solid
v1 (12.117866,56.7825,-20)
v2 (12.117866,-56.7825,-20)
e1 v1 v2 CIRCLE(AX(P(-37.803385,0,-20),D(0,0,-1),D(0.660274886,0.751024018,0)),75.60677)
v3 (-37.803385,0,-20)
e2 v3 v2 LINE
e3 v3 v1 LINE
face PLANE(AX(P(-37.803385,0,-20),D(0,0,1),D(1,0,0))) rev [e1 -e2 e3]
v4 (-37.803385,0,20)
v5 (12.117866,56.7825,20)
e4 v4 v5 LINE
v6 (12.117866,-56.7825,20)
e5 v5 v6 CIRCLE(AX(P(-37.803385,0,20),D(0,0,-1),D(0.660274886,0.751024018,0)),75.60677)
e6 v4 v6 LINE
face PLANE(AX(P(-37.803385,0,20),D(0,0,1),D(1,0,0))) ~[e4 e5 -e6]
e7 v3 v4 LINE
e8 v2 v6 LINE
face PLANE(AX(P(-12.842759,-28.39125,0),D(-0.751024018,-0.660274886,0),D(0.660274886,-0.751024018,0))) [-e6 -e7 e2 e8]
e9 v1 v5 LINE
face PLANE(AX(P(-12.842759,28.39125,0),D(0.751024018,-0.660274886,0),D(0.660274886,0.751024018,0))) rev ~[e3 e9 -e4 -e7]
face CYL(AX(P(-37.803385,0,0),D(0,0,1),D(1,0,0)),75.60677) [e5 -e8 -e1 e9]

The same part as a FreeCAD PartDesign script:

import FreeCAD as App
import Part
import Sketcher

doc = App.newDocument("Part")
body = doc.addObject("PartDesign::Body", "Body")

# Sketch on XZ plane
sketch1 = body.newObject("Sketcher::SketchObject", "Sketch")
sketch1.AttachmentSupport = (doc.getObject("XZ_Plane"), [""])
sketch1.MapMode = "FlatFace"
sketch1.addGeometry(Part.LineSegment(App.Vector(-37.803385, 20, 0), App.Vector(-37.803385, -20, 0)), False)
sketch1.addGeometry(Part.LineSegment(App.Vector(-37.803385, -20, 0), App.Vector(37.803385, -20, 0)), False)
sketch1.addGeometry(Part.LineSegment(App.Vector(37.803385, -20, 0), App.Vector(37.803385, 20, 0)), False)
sketch1.addGeometry(Part.LineSegment(App.Vector(37.803385, 20, 0), App.Vector(-37.803385, 20, 0)), False)
sketch1.addGeometry(Part.LineSegment(App.Vector(-37.803385, 20, 0), App.Vector(-37.803385, -20, 0)), True)  # axis
sketch1.addConstraint(Sketcher.Constraint("Coincident", 0, 2, 1, 1))
sketch1.addConstraint(Sketcher.Constraint("Coincident", 1, 2, 2, 1))
sketch1.addConstraint(Sketcher.Constraint("Coincident", 2, 2, 3, 1))
sketch1.addConstraint(Sketcher.Constraint("Coincident", 3, 2, 0, 1))
sketch1.addConstraint(Sketcher.Constraint("Vertical", 0))
sketch1.addConstraint(Sketcher.Constraint("Horizontal", 1))
sketch1.addConstraint(Sketcher.Constraint("Vertical", 2))
sketch1.addConstraint(Sketcher.Constraint("Horizontal", 3))
sketch1.addConstraint(Sketcher.Constraint("Vertical", 4))
sketch1.addConstraint(Sketcher.Constraint("Coincident", 4, 1, 3, 2))
sketch1.addConstraint(Sketcher.Constraint("Symmetric", 0, 2, 2, 2, -1, 1))
sketch1.addConstraint(Sketcher.Constraint("Horizontal", 1, 2, 4, 2))
sketch1.addConstraint(Sketcher.Constraint("DistanceY", 0, 2, 0, 1, 40.0))
sketch1.addConstraint(Sketcher.Constraint("DistanceX", 1, 1, 1, 2, 75.60677))
revolution = body.newObject("PartDesign::Revolution", "Revolution")
revolution.Profile = sketch1
revolution.ReferenceAxis = (sketch1, ["Axis0"])
revolution.Angle = 48.679159

# Sketch on XZ plane
sketch2 = body.newObject("Sketcher::SketchObject", "Sketch001")
sketch2.AttachmentSupport = (doc.getObject("XZ_Plane"), [""])
sketch2.MapMode = "FlatFace"
sketch2.addGeometry(Part.LineSegment(App.Vector(-37.803385, 20, 0), App.Vector(-37.803385, -20, 0)), False)
sketch2.addGeometry(Part.LineSegment(App.Vector(-37.803385, -20, 0), App.Vector(37.803385, -20, 0)), False)
sketch2.addGeometry(Part.LineSegment(App.Vector(37.803385, -20, 0), App.Vector(37.803385, 20, 0)), False)
sketch2.addGeometry(Part.LineSegment(App.Vector(37.803385, 20, 0), App.Vector(-37.803385, 20, 0)), False)
sketch2.addGeometry(Part.LineSegment(App.Vector(-37.803385, -20, 0), App.Vector(-37.803385, 20, 0)), True)  # axis
sketch2.addConstraint(Sketcher.Constraint("Coincident", 0, 2, 1, 1))
sketch2.addConstraint(Sketcher.Constraint("Coincident", 1, 2, 2, 1))
sketch2.addConstraint(Sketcher.Constraint("Coincident", 2, 2, 3, 1))
sketch2.addConstraint(Sketcher.Constraint("Coincident", 3, 2, 0, 1))
sketch2.addConstraint(Sketcher.Constraint("Vertical", 0))
sketch2.addConstraint(Sketcher.Constraint("Horizontal", 1))
sketch2.addConstraint(Sketcher.Constraint("Vertical", 2))
sketch2.addConstraint(Sketcher.Constraint("Horizontal", 3))
sketch2.addConstraint(Sketcher.Constraint("Vertical", 4))
sketch2.addConstraint(Sketcher.Constraint("Coincident", 4, 1, 0, 2))
sketch2.addConstraint(Sketcher.Constraint("Symmetric", 0, 2, 2, 2, -1, 1))
sketch2.addConstraint(Sketcher.Constraint("Horizontal", 2, 2, 4, 2))
sketch2.addConstraint(Sketcher.Constraint("DistanceY", 0, 2, 0, 1, 40.0))
sketch2.addConstraint(Sketcher.Constraint("DistanceX", 1, 1, 1, 2, 75.60677))
revolution2 = body.newObject("PartDesign::Revolution", "Revolution001")
revolution2.Profile = sketch2
revolution2.ReferenceAxis = (sketch2, ["Axis0"])
revolution2.Angle = 48.679159

doc.recompute()
